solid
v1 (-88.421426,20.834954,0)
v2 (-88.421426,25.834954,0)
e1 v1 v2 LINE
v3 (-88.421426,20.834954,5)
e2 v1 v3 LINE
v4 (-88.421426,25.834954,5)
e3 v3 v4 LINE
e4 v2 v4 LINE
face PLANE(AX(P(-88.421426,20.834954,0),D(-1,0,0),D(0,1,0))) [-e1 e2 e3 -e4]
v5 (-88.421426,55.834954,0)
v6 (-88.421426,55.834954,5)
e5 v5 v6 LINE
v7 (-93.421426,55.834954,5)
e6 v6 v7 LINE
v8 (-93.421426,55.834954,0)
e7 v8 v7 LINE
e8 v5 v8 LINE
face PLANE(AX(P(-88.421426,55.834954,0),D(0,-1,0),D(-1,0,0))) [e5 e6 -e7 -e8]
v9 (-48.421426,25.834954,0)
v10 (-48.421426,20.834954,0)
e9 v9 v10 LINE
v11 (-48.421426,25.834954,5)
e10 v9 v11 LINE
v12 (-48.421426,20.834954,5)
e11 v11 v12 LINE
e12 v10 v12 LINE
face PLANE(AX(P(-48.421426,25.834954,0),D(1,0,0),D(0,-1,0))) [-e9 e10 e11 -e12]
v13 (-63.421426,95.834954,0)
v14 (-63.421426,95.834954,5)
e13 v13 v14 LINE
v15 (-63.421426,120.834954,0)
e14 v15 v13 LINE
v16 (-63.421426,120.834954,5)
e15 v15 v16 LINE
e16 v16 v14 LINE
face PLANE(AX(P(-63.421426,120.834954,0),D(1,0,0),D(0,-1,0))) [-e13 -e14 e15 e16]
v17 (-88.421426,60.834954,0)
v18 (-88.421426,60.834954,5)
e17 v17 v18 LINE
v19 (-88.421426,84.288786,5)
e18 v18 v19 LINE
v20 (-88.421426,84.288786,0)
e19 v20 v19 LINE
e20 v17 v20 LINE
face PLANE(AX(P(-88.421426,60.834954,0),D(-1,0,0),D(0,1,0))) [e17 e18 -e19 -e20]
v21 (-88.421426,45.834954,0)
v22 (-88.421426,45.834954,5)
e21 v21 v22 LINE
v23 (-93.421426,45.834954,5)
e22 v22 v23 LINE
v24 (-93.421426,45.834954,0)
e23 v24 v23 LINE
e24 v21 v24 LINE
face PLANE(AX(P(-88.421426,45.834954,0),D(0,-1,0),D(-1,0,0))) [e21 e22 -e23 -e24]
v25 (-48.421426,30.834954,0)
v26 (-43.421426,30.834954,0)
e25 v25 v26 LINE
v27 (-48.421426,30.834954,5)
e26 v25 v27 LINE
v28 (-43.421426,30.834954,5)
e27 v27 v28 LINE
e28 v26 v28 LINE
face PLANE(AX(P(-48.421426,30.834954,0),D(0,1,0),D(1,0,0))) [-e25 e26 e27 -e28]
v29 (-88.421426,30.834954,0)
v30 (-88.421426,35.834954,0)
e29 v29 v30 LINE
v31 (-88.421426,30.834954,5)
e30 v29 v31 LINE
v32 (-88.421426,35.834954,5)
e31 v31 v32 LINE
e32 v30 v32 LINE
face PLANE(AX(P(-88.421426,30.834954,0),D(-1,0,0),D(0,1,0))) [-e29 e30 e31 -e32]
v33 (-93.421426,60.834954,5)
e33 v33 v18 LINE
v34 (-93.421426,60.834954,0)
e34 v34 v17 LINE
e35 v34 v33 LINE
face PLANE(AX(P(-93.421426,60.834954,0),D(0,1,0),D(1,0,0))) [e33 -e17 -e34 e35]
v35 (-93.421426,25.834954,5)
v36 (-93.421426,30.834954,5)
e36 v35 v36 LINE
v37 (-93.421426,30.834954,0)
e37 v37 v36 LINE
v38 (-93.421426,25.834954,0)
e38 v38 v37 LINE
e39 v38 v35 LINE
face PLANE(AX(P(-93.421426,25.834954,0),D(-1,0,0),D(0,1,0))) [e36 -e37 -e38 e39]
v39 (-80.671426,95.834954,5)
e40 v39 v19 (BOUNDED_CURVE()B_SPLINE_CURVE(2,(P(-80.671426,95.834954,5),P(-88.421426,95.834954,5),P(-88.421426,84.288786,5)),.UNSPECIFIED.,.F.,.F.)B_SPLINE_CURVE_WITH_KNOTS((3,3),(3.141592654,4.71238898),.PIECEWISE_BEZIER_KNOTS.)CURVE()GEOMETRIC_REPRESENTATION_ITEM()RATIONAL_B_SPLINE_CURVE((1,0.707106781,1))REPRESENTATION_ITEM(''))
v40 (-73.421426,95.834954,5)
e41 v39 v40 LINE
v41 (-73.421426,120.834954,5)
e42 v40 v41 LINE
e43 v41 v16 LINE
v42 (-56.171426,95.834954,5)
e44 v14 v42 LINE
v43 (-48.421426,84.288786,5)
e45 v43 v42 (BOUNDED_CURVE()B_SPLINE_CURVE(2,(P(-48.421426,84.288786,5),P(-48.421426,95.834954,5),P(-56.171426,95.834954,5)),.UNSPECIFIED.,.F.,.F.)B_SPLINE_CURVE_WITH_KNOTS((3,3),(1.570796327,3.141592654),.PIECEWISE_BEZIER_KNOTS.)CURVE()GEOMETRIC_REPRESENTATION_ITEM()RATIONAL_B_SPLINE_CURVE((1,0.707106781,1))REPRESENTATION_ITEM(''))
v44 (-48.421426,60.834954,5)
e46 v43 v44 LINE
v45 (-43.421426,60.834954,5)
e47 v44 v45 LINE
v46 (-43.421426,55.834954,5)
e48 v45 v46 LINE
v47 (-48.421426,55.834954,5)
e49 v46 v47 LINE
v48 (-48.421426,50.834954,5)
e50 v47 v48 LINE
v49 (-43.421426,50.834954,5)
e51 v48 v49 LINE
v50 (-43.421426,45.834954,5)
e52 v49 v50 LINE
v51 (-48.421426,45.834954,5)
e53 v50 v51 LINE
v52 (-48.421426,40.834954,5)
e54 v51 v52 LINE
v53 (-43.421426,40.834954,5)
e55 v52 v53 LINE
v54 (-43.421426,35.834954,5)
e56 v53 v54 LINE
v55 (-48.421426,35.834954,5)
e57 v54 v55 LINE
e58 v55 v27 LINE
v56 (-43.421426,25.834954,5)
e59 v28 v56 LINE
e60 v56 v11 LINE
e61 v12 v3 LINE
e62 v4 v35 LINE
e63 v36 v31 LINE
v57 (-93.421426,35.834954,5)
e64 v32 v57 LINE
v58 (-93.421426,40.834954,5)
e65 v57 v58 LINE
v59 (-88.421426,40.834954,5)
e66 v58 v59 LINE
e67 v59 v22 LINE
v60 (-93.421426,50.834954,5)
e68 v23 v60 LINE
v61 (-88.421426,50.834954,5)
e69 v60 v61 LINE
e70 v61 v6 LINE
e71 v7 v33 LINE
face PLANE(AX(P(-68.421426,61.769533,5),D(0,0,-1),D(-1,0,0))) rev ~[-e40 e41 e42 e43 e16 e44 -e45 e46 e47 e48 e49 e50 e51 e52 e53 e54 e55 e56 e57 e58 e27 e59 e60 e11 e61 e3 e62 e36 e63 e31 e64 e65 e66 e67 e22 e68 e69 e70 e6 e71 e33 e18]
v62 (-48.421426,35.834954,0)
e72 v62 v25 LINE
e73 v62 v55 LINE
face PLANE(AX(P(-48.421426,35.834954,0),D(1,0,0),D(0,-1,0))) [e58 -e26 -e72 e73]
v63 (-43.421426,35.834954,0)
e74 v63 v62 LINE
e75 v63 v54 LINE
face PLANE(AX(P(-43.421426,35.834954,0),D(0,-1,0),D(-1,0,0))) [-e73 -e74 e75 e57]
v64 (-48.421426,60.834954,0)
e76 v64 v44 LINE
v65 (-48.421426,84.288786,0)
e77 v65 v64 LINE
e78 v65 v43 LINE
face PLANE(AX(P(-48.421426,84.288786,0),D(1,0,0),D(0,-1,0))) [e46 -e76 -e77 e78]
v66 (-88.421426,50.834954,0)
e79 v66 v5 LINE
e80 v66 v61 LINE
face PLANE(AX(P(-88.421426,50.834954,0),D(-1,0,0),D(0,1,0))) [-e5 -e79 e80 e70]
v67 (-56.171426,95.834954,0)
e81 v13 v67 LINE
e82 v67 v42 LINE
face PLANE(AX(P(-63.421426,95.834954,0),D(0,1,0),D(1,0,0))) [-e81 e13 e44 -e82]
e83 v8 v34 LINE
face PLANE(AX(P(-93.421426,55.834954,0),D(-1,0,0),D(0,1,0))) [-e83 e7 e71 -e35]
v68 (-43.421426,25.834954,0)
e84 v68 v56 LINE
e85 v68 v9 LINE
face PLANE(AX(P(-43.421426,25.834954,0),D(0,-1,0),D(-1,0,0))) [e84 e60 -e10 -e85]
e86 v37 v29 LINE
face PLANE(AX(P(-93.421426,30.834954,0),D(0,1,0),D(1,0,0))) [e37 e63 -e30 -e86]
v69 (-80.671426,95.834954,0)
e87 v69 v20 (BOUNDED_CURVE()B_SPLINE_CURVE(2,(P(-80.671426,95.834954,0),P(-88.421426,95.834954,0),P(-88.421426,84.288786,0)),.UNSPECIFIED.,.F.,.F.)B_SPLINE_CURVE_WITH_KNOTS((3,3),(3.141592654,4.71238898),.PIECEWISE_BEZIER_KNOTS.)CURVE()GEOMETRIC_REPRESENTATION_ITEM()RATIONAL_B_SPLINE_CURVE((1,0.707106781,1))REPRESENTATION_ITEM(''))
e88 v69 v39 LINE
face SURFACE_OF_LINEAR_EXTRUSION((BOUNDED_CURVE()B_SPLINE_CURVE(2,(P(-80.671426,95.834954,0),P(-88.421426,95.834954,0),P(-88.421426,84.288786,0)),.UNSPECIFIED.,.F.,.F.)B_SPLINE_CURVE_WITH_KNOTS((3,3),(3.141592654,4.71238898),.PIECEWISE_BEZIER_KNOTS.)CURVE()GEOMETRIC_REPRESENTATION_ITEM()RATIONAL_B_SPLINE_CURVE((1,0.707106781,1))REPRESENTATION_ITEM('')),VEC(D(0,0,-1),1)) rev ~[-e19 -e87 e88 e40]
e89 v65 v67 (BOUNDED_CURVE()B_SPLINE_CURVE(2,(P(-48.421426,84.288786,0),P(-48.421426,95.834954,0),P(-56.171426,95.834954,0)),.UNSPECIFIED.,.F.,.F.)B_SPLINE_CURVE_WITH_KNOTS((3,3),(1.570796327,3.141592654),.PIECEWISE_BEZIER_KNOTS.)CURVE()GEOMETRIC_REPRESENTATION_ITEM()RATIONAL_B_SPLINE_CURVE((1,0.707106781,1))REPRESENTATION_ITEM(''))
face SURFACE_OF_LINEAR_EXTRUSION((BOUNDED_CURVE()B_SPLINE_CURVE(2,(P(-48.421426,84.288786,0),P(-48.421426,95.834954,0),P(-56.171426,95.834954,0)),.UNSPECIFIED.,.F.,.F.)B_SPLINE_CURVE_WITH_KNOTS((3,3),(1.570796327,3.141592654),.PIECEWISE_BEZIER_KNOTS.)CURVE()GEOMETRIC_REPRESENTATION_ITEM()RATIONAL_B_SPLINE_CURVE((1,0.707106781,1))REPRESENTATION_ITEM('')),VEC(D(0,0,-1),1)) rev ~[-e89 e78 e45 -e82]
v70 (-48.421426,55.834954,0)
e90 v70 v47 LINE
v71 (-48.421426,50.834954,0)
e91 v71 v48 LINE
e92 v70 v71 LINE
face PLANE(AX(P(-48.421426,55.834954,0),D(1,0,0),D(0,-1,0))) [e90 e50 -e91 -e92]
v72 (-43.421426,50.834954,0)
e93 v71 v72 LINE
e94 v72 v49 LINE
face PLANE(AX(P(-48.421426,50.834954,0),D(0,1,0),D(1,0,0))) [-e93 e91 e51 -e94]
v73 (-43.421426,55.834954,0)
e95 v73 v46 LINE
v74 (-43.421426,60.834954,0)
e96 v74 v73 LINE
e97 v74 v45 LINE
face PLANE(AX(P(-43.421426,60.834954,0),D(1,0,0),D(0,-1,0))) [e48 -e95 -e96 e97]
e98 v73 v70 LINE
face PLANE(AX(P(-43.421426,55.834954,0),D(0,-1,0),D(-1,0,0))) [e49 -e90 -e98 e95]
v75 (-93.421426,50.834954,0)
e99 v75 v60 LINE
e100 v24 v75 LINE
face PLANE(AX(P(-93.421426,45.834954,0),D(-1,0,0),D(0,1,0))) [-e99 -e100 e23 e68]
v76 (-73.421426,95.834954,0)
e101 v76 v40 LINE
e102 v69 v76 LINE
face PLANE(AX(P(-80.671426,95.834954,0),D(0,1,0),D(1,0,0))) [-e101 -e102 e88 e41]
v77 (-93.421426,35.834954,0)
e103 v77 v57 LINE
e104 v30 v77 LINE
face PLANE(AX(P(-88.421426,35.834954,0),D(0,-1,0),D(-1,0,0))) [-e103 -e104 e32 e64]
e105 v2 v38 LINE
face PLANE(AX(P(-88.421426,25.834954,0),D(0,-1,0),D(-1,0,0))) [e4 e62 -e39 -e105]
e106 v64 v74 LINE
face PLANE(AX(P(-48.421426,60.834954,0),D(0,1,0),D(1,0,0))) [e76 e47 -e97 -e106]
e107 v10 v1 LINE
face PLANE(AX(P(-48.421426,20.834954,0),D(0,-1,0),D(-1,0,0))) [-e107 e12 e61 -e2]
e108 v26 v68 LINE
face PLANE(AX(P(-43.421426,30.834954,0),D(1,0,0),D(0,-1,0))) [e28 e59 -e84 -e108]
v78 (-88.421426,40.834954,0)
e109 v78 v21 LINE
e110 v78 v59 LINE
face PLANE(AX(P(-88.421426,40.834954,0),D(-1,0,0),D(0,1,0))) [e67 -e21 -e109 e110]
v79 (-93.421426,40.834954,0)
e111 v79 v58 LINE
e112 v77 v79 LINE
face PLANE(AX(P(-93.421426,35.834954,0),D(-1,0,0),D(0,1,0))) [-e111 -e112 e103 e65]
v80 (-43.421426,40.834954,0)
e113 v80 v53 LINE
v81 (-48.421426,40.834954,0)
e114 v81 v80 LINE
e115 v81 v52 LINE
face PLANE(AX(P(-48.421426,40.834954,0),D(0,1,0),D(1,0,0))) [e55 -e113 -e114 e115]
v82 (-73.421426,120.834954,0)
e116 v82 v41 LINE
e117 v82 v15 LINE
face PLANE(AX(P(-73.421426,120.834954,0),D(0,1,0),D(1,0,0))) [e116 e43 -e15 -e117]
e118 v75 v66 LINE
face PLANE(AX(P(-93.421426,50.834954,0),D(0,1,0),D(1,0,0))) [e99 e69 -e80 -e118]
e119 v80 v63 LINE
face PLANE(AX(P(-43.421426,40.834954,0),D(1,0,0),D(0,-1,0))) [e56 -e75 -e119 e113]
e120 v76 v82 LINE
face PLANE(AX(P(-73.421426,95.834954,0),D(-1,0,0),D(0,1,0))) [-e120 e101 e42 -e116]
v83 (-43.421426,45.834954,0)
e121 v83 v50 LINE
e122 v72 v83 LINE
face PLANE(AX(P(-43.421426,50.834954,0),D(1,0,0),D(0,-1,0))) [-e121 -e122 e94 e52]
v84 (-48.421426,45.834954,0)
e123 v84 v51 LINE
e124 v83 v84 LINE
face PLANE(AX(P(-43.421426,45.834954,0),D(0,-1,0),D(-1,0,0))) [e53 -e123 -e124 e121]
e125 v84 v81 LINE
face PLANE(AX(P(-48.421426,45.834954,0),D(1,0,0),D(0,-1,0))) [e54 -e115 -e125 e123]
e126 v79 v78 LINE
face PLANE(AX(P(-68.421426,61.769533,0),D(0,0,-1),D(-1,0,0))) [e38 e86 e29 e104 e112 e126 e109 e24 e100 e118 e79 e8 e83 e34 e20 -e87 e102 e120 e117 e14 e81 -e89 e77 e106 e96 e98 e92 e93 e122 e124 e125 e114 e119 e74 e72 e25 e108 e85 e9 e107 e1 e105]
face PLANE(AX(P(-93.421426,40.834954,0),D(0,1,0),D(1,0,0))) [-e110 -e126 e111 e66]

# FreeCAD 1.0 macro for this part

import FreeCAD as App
import Part
import Sketcher

doc = App.newDocument("Part")
body = doc.addObject("PartDesign::Body", "Body")

sketch1 = doc.addObject("Sketcher::SketchObject", "Sketch")
body.addObject(sketch1)
sketch1.AttachmentSupport = (doc.XY_Plane, [""])
sketch1.MapMode = "FlatFace"
sketch1.addGeometry(Part.LineSegment(App.Vector(-88.421426, 25.834954, 0), App.Vector(-88.421426, 20.834954, 0)), False)
sketch1.addGeometry(Part.LineSegment(App.Vector(-88.421426, 20.834954, 0), App.Vector(-48.421426, 20.834954, 0)), False)
sketch1.addGeometry(Part.LineSegment(App.Vector(-48.421426, 20.834954, 0), App.Vector(-48.421426, 25.834954, 0)), False)
sketch1.addGeometry(Part.LineSegment(App.Vector(-48.421426, 25.834954, 0), App.Vector(-43.421426, 25.834954, 0)), False)
sketch1.addGeometry(Part.LineSegment(App.Vector(-43.421426, 25.834954, 0), App.Vector(-43.421426, 30.834954, 0)), False)
sketch1.addGeometry(Part.LineSegment(App.Vector(-43.421426, 30.834954, 0), App.Vector(-48.421426, 30.834954, 0)), False)
sketch1.addGeometry(Part.LineSegment(App.Vector(-48.421426, 30.834954, 0), App.Vector(-48.421426, 35.834954, 0)), False)
sketch1.addGeometry(Part.LineSegment(App.Vector(-48.421426, 35.834954, 0), App.Vector(-43.421426, 35.834954, 0)), False)
sketch1.addGeometry(Part.LineSegment(App.Vector(-43.421426, 35.834954, 0), App.Vector(-43.421426, 40.834954, 0)), False)
sketch1.addGeometry(Part.LineSegment(App.Vector(-43.421426, 40.834954, 0), App.Vector(-48.421426, 40.834954, 0)), False)
sketch1.addGeometry(Part.LineSegment(App.Vector(-48.421426, 40.834954, 0), App.Vector(-48.421426, 45.834954, 0)), False)
sketch1.addGeometry(Part.LineSegment(App.Vector(-48.421426, 45.834954, 0), App.Vector(-43.421426, 45.834954, 0)), False)
sketch1.addGeometry(Part.LineSegment(App.Vector(-43.421426, 45.834954, 0), App.Vector(-43.421426, 50.834954, 0)), False)
sketch1.addGeometry(Part.LineSegment(App.Vector(-43.421426, 50.834954, 0), App.Vector(-48.421426, 50.834954, 0)), False)
sketch1.addGeometry(Part.LineSegment(App.Vector(-48.421426, 50.834954, 0), App.Vector(-48.421426, 55.834954, 0)), False)
sketch1.addGeometry(Part.LineSegment(App.Vector(-48.421426, 55.834954, 0), App.Vector(-43.421426, 55.834954, 0)), False)
sketch1.addGeometry(Part.LineSegment(App.Vector(-43.421426, 55.834954, 0), App.Vector(-43.421426, 60.834954, 0)), False)
sketch1.addGeometry(Part.LineSegment(App.Vector(-43.421426, 60.834954, 0), App.Vector(-48.421426, 60.834954, 0)), False)
sketch1.addGeometry(Part.LineSegment(App.Vector(-48.421426, 60.834954, 0), App.Vector(-48.421426, 84.288786, 0)), False)
sketch1.addGeometry(Part.BSplineCurve([App.Vector(-48.421426, 84.288786, 0), App.Vector(-48.421426, 95.834954, 0), App.Vector(-56.171426, 95.834954, 0)], [3, 3], [1.570796327, 3.141592654], False, 2, [1, 0.707106781, 1], False), False)
sketch1.addGeometry(Part.LineSegment(App.Vector(-56.171426, 95.834954, 0), App.Vector(-63.421426, 95.834954, 0)), False)
sketch1.addGeometry(Part.LineSegment(App.Vector(-63.421426, 95.834954, 0), App.Vector(-63.421426, 120.834954, 0)), False)
sketch1.addGeometry(Part.LineSegment(App.Vector(-63.421426, 120.834954, 0), App.Vector(-73.421426, 120.834954, 0)), False)
sketch1.addGeometry(Part.LineSegment(App.Vector(-73.421426, 120.834954, 0), App.Vector(-73.421426, 95.834954, 0)), False)
sketch1.addGeometry(Part.LineSegment(App.Vector(-73.421426, 95.834954, 0), App.Vector(-80.671426, 95.834954, 0)), False)
sketch1.addGeometry(Part.BSplineCurve([App.Vector(-80.671426, 95.834954, 0), App.Vector(-88.421426, 95.834954, 0), App.Vector(-88.421426, 84.288786, 0)], [3, 3], [3.141592654, 4.71238898], False, 2, [1, 0.707106781, 1], False), False)
sketch1.addGeometry(Part.LineSegment(App.Vector(-88.421426, 84.288786, 0), App.Vector(-88.421426, 60.834954, 0)), False)
sketch1.addGeometry(Part.LineSegment(App.Vector(-88.421426, 60.834954, 0), App.Vector(-93.421426, 60.834954, 0)), False)
sketch1.addGeometry(Part.LineSegment(App.Vector(-93.421426, 60.834954, 0), App.Vector(-93.421426, 55.834954, 0)), False)
sketch1.addGeometry(Part.LineSegment(App.Vector(-93.421426, 55.834954, 0), App.Vector(-88.421426, 55.834954, 0)), False)
sketch1.addGeometry(Part.LineSegment(App.Vector(-88.421426, 55.834954, 0), App.Vector(-88.421426, 50.834954, 0)), False)
sketch1.addGeometry(Part.LineSegment(App.Vector(-88.421426, 50.834954, 0), App.Vector(-93.421426, 50.834954, 0)), False)
sketch1.addGeometry(Part.LineSegment(App.Vector(-93.421426, 50.834954, 0), App.Vector(-93.421426, 45.834954, 0)), False)
sketch1.addGeometry(Part.LineSegment(App.Vector(-93.421426, 45.834954, 0), App.Vector(-88.421426, 45.834954, 0)), False)
sketch1.addGeometry(Part.LineSegment(App.Vector(-88.421426, 45.834954, 0), App.Vector(-88.421426, 40.834954, 0)), False)
sketch1.addGeometry(Part.LineSegment(App.Vector(-88.421426, 40.834954, 0), App.Vector(-93.421426, 40.834954, 0)), False)
sketch1.addGeometry(Part.LineSegment(App.Vector(-93.421426, 40.834954, 0), App.Vector(-93.421426, 35.834954, 0)), False)
sketch1.addGeometry(Part.LineSegment(App.Vector(-93.421426, 35.834954, 0), App.Vector(-88.421426, 35.834954, 0)), False)
sketch1.addGeometry(Part.LineSegment(App.Vector(-88.421426, 35.834954, 0), App.Vector(-88.421426, 30.834954, 0)), False)
sketch1.addGeometry(Part.LineSegment(App.Vector(-88.421426, 30.834954, 0), App.Vector(-93.421426, 30.834954, 0)), False)
sketch1.addGeometry(Part.LineSegment(App.Vector(-93.421426, 30.834954, 0), App.Vector(-93.421426, 25.834954, 0)), False)
sketch1.addGeometry(Part.LineSegment(App.Vector(-93.421426, 25.834954, 0), App.Vector(-88.421426, 25.834954, 0)), False)
sketch1.addConstraint(Sketcher.Constraint("Block", 19))
sketch1.addConstraint(Sketcher.Constraint("Block", 25))
sketch1.addConstraint(Sketcher.Constraint("Coincident", 0, 2, 1, 1))
sketch1.addConstraint(Sketcher.Constraint("Coincident", 1, 2, 2, 1))
sketch1.addConstraint(Sketcher.Constraint("Coincident", 2, 2, 3, 1))
sketch1.addConstraint(Sketcher.Constraint("Coincident", 3, 2, 4, 1))
sketch1.addConstraint(Sketcher.Constraint("Coincident", 4, 2, 5, 1))
sketch1.addConstraint(Sketcher.Constraint("Coincident", 5, 2, 6, 1))
sketch1.addConstraint(Sketcher.Constraint("Coincident", 6, 2, 7, 1))
sketch1.addConstraint(Sketcher.Constraint("Coincident", 7, 2, 8, 1))
sketch1.addConstraint(Sketcher.Constraint("Coincident", 8, 2, 9, 1))
sketch1.addConstraint(Sketcher.Constraint("Coincident", 9, 2, 10, 1))
sketch1.addConstraint(Sketcher.Constraint("Coincident", 10, 2, 11, 1))
sketch1.addConstraint(Sketcher.Constraint("Coincident", 11, 2, 12, 1))
sketch1.addConstraint(Sketcher.Constraint("Coincident", 12, 2, 13, 1))
sketch1.addConstraint(Sketcher.Constraint("Coincident", 13, 2, 14, 1))
sketch1.addConstraint(Sketcher.Constraint("Coincident", 14, 2, 15, 1))
sketch1.addConstraint(Sketcher.Constraint("Coincident", 15, 2, 16, 1))
sketch1.addConstraint(Sketcher.Constraint("Coincident", 16, 2, 17, 1))
sketch1.addConstraint(Sketcher.Constraint("Coincident", 17, 2, 18, 1))
sketch1.addConstraint(Sketcher.Constraint("Coincident", 18, 2, 19, 1))
sketch1.addConstraint(Sketcher.Constraint("Coincident", 19, 2, 20, 1))
sketch1.addConstraint(Sketcher.Constraint("Coincident", 20, 2, 21, 1))
sketch1.addConstraint(Sketcher.Constraint("Coincident", 21, 2, 22, 1))
sketch1.addConstraint(Sketcher.Constraint("Coincident", 22, 2, 23, 1))
sketch1.addConstraint(Sketcher.Constraint("Coincident", 23, 2, 24, 1))
sketch1.addConstraint(Sketcher.Constraint("Coincident", 24, 2, 25, 1))
sketch1.addConstraint(Sketcher.Constraint("Coincident", 25, 2, 26, 1))
sketch1.addConstraint(Sketcher.Constraint("Coincident", 26, 2, 27, 1))
sketch1.addConstraint(Sketcher.Constraint("Coincident", 27, 2, 28, 1))
sketch1.addConstraint(Sketcher.Constraint("Coincident", 28, 2, 29, 1))
sketch1.addConstraint(Sketcher.Constraint("Coincident", 29, 2, 30, 1))
sketch1.addConstraint(Sketcher.Constraint("Coincident", 30, 2, 31, 1))
sketch1.addConstraint(Sketcher.Constraint("Coincident", 31, 2, 32, 1))
sketch1.addConstraint(Sketcher.Constraint("Coincident", 32, 2, 33, 1))
sketch1.addConstraint(Sketcher.Constraint("Coincident", 33, 2, 34, 1))
sketch1.addConstraint(Sketcher.Constraint("Coincident", 34, 2, 35, 1))
sketch1.addConstraint(Sketcher.Constraint("Coincident", 35, 2, 36, 1))
sketch1.addConstraint(Sketcher.Constraint("Coincident", 36, 2, 37, 1))
sketch1.addConstraint(Sketcher.Constraint("Coincident", 37, 2, 38, 1))
sketch1.addConstraint(Sketcher.Constraint("Coincident", 38, 2, 39, 1))
sketch1.addConstraint(Sketcher.Constraint("Coincident", 39, 2, 40, 1))
sketch1.addConstraint(Sketcher.Constraint("Coincident", 40, 2, 41, 1))
sketch1.addConstraint(Sketcher.Constraint("Coincident", 41, 2, 0, 1))
sketch1.addConstraint(Sketcher.Constraint("Vertical", 0))
sketch1.addConstraint(Sketcher.Constraint("Horizontal", 1))
sketch1.addConstraint(Sketcher.Constraint("Vertical", 2))
sketch1.addConstraint(Sketcher.Constraint("Horizontal", 3))
sketch1.addConstraint(Sketcher.Constraint("Vertical", 4))
sketch1.addConstraint(Sketcher.Constraint("Horizontal", 5))
sketch1.addConstraint(Sketcher.Constraint("Vertical", 6))
sketch1.addConstraint(Sketcher.Constraint("Horizontal", 7))
sketch1.addConstraint(Sketcher.Constraint("Vertical", 8))
sketch1.addConstraint(Sketcher.Constraint("Horizontal", 9))
sketch1.addConstraint(Sketcher.Constraint("Vertical", 10))
sketch1.addConstraint(Sketcher.Constraint("Horizontal", 11))
sketch1.addConstraint(Sketcher.Constraint("Vertical", 12))
sketch1.addConstraint(Sketcher.Constraint("Horizontal", 13))
sketch1.addConstraint(Sketcher.Constraint("Vertical", 14))
sketch1.addConstraint(Sketcher.Constraint("Horizontal", 15))
sketch1.addConstraint(Sketcher.Constraint("Vertical", 16))
sketch1.addConstraint(Sketcher.Constraint("Horizontal", 17))
sketch1.addConstraint(Sketcher.Constraint("Vertical", 18))
sketch1.addConstraint(Sketcher.Constraint("Horizontal", 20))
sketch1.addConstraint(Sketcher.Constraint("Vertical", 21))
sketch1.addConstraint(Sketcher.Constraint("Horizontal", 22))
sketch1.addConstraint(Sketcher.Constraint("Vertical", 23))
sketch1.addConstraint(Sketcher.Constraint("Horizontal", 24))
sketch1.addConstraint(Sketcher.Constraint("Vertical", 26))
sketch1.addConstraint(Sketcher.Constraint("Horizontal", 27))
sketch1.addConstraint(Sketcher.Constraint("Vertical", 28))
sketch1.addConstraint(Sketcher.Constraint("Horizontal", 29))
sketch1.addConstraint(Sketcher.Constraint("Vertical", 30))
sketch1.addConstraint(Sketcher.Constraint("Horizontal", 31))
sketch1.addConstraint(Sketcher.Constraint("Vertical", 32))
sketch1.addConstraint(Sketcher.Constraint("Horizontal", 33))
sketch1.addConstraint(Sketcher.Constraint("Vertical", 34))
sketch1.addConstraint(Sketcher.Constraint("Horizontal", 35))
sketch1.addConstraint(Sketcher.Constraint("Vertical", 36))
sketch1.addConstraint(Sketcher.Constraint("Horizontal", 37))
sketch1.addConstraint(Sketcher.Constraint("Vertical", 38))
sketch1.addConstraint(Sketcher.Constraint("Horizontal", 39))
sketch1.addConstraint(Sketcher.Constraint("Vertical", 40))
sketch1.addConstraint(Sketcher.Constraint("Horizontal", 41))
sketch1.addConstraint(Sketcher.Constraint("Horizontal", 17, 2, 26, 2))
sketch1.addConstraint(Sketcher.Constraint("Horizontal", 15, 2, 28, 2))
sketch1.addConstraint(Sketcher.Constraint("Horizontal", 13, 2, 30, 2))
sketch1.addConstraint(Sketcher.Constraint("Horizontal", 11, 2, 32, 2))
sketch1.addConstraint(Sketcher.Constraint("Horizontal", 9, 2, 34, 2))
sketch1.addConstraint(Sketcher.Constraint("Horizontal", 7, 2, 36, 2))
sketch1.addConstraint(Sketcher.Constraint("Horizontal", 5, 2, 38, 2))
sketch1.addConstraint(Sketcher.Constraint("Horizontal", 3, 2, 40, 2))
sketch1.addConstraint(Sketcher.Constraint("Vertical", 2, 2, 5, 2))
sketch1.addConstraint(Sketcher.Constraint("Vertical", 4, 2, 7, 2))
sketch1.addConstraint(Sketcher.Constraint("Vertical", 6, 2, 9, 2))
sketch1.addConstraint(Sketcher.Constraint("Vertical", 8, 2, 11, 2))
sketch1.addConstraint(Sketcher.Constraint("Vertical", 10, 2, 13, 2))
sketch1.addConstraint(Sketcher.Constraint("Vertical", 12, 2, 15, 2))
sketch1.addConstraint(Sketcher.Constraint("Vertical", 14, 2, 17, 2))
sketch1.addConstraint(Sketcher.Constraint("Vertical", 0, 2, 26, 2))
sketch1.addConstraint(Sketcher.Constraint("Vertical", 26, 2, 29, 2))
sketch1.addConstraint(Sketcher.Constraint("Vertical", 28, 2, 31, 2))
sketch1.addConstraint(Sketcher.Constraint("Vertical", 30, 2, 33, 2))
sketch1.addConstraint(Sketcher.Constraint("Vertical", 32, 2, 35, 2))
sketch1.addConstraint(Sketcher.Constraint("Vertical", 34, 2, 37, 2))
sketch1.addConstraint(Sketcher.Constraint("Vertical", 36, 2, 39, 2))
sketch1.addConstraint(Sketcher.Constraint("Equal", 20, 24))
sketch1.addConstraint(Sketcher.Constraint("Equal", 17, 27))
sketch1.addConstraint(Sketcher.Constraint("Equal", 41, 0))
sketch1.addConstraint(Sketcher.Constraint("Equal", 2, 4))
sketch1.addConstraint(Sketcher.Constraint("Equal", 4, 6))
sketch1.addConstraint(Sketcher.Constraint("Equal", 6, 8))
sketch1.addConstraint(Sketcher.Constraint("Equal", 8, 10))
sketch1.addConstraint(Sketcher.Constraint("Equal", 10, 12))
sketch1.addConstraint(Sketcher.Constraint("Equal", 12, 14))
sketch1.addConstraint(Sketcher.Constraint("Equal", 14, 16))
sketch1.addConstraint(Sketcher.Constraint("DistanceX", 3, 1, 3, 2, 5.0))
sketch1.addConstraint(Sketcher.Constraint("DistanceX", 22, 2, 22, 1, 10.0))
sketch1.addConstraint(Sketcher.Constraint("DistanceY", 21, 1, 21, 2, 25.0))
sketch1.addConstraint(Sketcher.Constraint("DistanceY", 17, 2, 20, 2, 35.0))
pad1 = doc.addObject("PartDesign::Pad", "Pad")
body.addObject(pad1)
pad1.Profile = sketch1
pad1.Length = 5

doc.recompute()
